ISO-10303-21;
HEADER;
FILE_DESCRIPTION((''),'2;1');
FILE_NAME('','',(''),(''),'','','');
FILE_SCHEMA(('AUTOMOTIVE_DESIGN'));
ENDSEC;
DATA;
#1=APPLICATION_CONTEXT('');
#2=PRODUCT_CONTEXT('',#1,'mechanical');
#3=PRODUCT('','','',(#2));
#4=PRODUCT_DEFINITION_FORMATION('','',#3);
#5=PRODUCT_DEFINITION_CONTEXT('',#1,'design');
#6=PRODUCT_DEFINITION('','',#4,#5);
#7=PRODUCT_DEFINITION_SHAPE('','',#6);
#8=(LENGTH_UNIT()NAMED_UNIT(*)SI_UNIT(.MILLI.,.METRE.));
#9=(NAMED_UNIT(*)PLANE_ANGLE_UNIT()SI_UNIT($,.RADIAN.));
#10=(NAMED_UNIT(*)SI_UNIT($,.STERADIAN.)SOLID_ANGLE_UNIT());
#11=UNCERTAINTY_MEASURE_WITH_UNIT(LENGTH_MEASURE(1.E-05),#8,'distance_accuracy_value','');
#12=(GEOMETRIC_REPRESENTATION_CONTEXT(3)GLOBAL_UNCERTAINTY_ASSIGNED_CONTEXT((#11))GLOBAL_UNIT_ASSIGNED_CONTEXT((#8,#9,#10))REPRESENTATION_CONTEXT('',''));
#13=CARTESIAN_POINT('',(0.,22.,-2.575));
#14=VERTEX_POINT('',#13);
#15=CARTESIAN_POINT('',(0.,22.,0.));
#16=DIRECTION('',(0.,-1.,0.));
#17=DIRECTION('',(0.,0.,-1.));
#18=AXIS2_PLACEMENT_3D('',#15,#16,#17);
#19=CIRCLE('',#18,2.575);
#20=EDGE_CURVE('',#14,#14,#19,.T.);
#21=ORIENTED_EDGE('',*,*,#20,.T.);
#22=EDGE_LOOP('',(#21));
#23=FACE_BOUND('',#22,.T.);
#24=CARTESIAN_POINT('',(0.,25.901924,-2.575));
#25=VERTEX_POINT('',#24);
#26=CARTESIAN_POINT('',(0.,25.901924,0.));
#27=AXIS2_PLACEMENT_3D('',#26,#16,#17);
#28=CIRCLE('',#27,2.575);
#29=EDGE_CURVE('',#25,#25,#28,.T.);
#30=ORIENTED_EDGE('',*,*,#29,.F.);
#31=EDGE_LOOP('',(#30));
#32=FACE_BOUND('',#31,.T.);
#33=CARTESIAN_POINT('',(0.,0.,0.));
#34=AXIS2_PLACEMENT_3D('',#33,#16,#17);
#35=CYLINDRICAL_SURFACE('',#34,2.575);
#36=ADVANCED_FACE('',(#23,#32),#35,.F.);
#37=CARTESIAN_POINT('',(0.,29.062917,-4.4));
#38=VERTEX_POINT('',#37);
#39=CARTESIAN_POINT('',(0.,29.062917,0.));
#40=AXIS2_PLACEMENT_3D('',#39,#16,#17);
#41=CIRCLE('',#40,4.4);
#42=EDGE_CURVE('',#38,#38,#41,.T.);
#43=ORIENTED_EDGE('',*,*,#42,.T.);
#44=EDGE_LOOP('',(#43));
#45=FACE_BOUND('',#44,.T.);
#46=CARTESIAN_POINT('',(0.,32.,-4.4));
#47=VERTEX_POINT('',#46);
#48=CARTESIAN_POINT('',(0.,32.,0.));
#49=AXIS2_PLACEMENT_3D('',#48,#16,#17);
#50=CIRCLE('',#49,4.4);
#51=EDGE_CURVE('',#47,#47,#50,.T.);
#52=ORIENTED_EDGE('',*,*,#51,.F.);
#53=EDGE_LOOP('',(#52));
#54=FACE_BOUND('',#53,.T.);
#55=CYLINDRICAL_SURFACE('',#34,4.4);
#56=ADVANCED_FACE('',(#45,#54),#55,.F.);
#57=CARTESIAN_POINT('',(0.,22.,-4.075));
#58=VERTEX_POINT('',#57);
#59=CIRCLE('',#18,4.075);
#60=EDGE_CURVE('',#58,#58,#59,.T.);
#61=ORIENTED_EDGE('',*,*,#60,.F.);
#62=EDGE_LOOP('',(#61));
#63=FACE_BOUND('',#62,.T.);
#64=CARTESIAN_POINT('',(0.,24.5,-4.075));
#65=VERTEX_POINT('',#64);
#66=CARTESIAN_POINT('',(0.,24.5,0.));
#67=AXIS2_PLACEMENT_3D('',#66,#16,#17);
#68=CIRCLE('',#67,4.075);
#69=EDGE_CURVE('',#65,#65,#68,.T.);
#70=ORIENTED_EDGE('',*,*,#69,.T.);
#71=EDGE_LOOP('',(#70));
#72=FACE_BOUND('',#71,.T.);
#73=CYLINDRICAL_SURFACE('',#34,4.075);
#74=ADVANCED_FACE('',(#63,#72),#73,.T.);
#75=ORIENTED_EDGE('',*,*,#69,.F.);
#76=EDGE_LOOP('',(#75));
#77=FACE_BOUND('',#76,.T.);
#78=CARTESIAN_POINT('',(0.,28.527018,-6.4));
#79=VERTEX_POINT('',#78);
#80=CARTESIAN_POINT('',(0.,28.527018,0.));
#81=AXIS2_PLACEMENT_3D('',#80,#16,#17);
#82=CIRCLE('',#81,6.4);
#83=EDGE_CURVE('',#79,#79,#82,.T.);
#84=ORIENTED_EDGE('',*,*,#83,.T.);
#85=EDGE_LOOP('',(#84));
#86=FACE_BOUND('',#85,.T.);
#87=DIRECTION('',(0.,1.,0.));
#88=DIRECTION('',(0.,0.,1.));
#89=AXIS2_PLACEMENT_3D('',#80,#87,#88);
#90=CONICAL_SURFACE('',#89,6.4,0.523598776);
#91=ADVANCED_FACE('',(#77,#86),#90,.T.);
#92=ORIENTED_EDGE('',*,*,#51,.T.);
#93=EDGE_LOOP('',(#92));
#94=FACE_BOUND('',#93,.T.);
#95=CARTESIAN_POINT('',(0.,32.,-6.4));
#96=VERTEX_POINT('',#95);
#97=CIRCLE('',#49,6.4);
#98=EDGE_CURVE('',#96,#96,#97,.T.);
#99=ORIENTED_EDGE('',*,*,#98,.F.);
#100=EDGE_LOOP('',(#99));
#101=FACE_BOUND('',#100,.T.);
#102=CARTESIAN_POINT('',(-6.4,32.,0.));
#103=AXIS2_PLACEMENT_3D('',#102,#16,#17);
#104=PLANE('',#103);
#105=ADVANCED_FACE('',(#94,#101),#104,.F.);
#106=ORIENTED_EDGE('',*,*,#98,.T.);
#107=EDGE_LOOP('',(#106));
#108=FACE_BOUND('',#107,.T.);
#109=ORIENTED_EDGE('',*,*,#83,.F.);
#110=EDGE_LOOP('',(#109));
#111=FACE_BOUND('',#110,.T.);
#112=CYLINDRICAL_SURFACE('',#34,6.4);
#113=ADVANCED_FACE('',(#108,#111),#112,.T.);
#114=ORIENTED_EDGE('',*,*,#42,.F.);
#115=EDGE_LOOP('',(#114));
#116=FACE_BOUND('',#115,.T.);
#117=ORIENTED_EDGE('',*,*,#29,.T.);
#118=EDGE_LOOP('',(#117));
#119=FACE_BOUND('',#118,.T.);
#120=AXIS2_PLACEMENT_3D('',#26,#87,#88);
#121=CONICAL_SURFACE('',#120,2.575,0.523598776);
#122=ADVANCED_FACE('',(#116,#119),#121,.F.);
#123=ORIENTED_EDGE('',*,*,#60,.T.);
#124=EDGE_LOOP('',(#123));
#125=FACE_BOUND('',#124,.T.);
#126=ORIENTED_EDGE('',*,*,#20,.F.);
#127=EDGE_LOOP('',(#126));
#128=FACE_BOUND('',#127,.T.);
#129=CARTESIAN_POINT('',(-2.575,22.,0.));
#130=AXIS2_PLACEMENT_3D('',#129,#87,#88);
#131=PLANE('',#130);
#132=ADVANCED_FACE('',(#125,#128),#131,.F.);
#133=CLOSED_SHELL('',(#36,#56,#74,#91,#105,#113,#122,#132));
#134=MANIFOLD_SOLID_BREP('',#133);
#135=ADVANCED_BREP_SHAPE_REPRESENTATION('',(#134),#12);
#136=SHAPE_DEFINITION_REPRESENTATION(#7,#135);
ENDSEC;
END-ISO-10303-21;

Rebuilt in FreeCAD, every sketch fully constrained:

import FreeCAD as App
import Part
import Sketcher
from FreeCAD import Vector
Q = App.Units.Quantity


def add_polygon(sketch, points):
    """Adds a closed chain of lines whose ends are joined by coincident constraints."""
    first, n = sketch.GeometryCount, len(points)
    for a, b in zip(points, points[1:] + points[:1]):
        sketch.addGeometry(Part.LineSegment(App.Vector(*a, 0), App.Vector(*b, 0)), False)
    for i in range(n):
        sketch.addConstraint(Sketcher.Constraint("Coincident", first + i, 2, first + (i + 1) % n, 1))

doc = App.newDocument("Part")
params = doc.addObject("Spreadsheet::Sheet", "Params")
for row, (alias, value) in enumerate([
    ("sketch1_width", "2 mm"),
    ("sketch1_width2", "1.5 mm"),
    ("sketch1_height", "2.5 mm"),
    ("sketch1_length", "3.65 mm"),
    ("revolution_angle", "360 deg"),
], start=1):
    params.set(f"A{row}", alias)
    params.set(f"B{row}", "=" + value)
    params.setAlias(f"B{row}", alias)

body = doc.addObject("PartDesign::Body", "Body")

sketch1 = body.newObject("Sketcher::SketchObject", "Sketch")
sketch1.AttachmentSupport = (doc.getObject("XY_Plane"), [""])
sketch1.MapMode = "FlatFace"
add_polygon(sketch1, [(-4.1, 24.5), (-4.1, 22), (-2.6, 22), (-2.6, 25.9), (-4.4, 29.1), (-4.4, 32), (-6.4, 32), (-6.4, 28.5)])
sketch1.addConstraint(Sketcher.Constraint("Vertical", 0))
sketch1.addConstraint(Sketcher.Constraint("Horizontal", 1))
sketch1.addConstraint(Sketcher.Constraint("Vertical", 2))
sketch1.addConstraint(Sketcher.Constraint("Vertical", 4))
sketch1.addConstraint(Sketcher.Constraint("Horizontal", 5))
sketch1.addConstraint(Sketcher.Constraint("Vertical", 6))
sketch1.addConstraint(Sketcher.Constraint("Parallel", 3, 7))
sketch1.addConstraint(Sketcher.Constraint("DistanceX", 5, 2, 5, 1, 2.0))
sketch1.addConstraint(Sketcher.Constraint("Angle", 3, Q("120 deg")))
sketch1.addConstraint(Sketcher.Constraint("DistanceX", 1, 1, 1, 2, 1.5))
sketch1.addConstraint(Sketcher.Constraint("DistanceY", 0, 2, 0, 1, 2.5))
sketch1.addConstraint(Sketcher.Constraint("DistanceY", -1, 1, 0, 2, 22.0))
sketch1.addConstraint(Sketcher.Constraint("DistanceY", -1, 1, 4, 2, 32.0))
sketch1.addConstraint(Sketcher.Constraint("DistanceX", 3, 2, -1, 1, 4.4))
sketch1.addConstraint(Sketcher.Constraint("Distance", 3, 3.65))
sketch1.addConstraint(Sketcher.Constraint("DistanceY", 6, 2, 3, 2, 0.535898))
sketch1.setExpression("Constraints[15]", "Params.sketch1_width")
sketch1.setExpression("Constraints[17]", "Params.sketch1_width2")
sketch1.setExpression("Constraints[18]", "Params.sketch1_height")
sketch1.setExpression("Constraints[22]", "Params.sketch1_length")
revolution = body.newObject("PartDesign::Revolution", "Revolution")
revolution.Profile = sketch1
revolution.ReferenceAxis = (sketch1, ["V_Axis"])
revolution.setExpression("Angle", "Params.revolution_angle")

doc.recompute()
